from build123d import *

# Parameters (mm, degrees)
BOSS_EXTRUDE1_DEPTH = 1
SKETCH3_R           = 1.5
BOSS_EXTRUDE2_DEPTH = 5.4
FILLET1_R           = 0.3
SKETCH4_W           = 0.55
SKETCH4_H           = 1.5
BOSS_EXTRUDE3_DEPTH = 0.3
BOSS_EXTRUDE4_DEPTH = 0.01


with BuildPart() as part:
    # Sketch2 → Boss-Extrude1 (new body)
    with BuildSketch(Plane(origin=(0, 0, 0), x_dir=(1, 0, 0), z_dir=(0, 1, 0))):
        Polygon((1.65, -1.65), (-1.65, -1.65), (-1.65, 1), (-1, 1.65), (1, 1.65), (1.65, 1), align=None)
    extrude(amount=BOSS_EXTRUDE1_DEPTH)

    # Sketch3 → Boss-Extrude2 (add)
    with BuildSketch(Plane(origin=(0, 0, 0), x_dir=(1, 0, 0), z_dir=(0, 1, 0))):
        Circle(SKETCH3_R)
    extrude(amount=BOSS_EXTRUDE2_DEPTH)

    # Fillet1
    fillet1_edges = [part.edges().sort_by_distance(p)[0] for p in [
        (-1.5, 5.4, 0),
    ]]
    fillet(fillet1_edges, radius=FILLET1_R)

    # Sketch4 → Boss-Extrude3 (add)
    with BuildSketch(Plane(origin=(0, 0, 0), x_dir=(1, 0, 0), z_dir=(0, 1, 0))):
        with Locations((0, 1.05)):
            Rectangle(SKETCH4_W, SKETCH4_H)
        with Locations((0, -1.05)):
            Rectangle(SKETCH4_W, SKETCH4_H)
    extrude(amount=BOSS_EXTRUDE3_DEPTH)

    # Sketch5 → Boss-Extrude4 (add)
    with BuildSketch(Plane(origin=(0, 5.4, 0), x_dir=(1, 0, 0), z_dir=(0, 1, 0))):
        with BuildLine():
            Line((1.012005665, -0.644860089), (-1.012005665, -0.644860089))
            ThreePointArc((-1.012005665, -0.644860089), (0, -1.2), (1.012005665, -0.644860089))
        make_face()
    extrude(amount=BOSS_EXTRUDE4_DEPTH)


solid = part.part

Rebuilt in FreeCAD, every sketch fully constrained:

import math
import FreeCAD as App
import Part
import Sketcher

V = App.Vector


def edges_at(feature, points):
    """Names of the edges that pass closest to the given points."""
    edges = feature.Shape.Edges
    near = lambda p: min(range(len(edges)), key=lambda i: edges[i].distToShape(Part.Vertex(*p))[0])
    return sorted({f"Edge{near(p) + 1}" for p in points})


def add_polygon(sketch, points):
    """Adds a closed chain of lines whose ends are joined by coincident constraints."""
    first, n = sketch.GeometryCount, len(points)
    for a, b in zip(points, points[1:] + points[:1]):
        sketch.addGeometry(Part.LineSegment(App.Vector(*a, 0), App.Vector(*b, 0)), False)
    for i in range(n):
        sketch.addConstraint(Sketcher.Constraint("Coincident", first + i, 2, first + (i + 1) % n, 1))

doc = App.newDocument("Part")
body = doc.addObject("PartDesign::Body", "Body")

# Sketch on XZ plane
sketch1 = doc.addObject("Sketcher::SketchObject", "Sketch")
body.addObject(sketch1)
sketch1.AttachmentSupport = (doc.XZ_Plane, [""])
sketch1.MapMode = "FlatFace"
add_polygon(sketch1, [(-1.6, 1.6), (1.6, 1.6), (1.6, -1), (1, -1.6), (-1, -1.6), (-1.6, -1)])  # lines 0-5
sketch1.addConstraint(Sketcher.Constraint("Horizontal", 0))
sketch1.addConstraint(Sketcher.Constraint("Vertical", 1))
sketch1.addConstraint(Sketcher.Constraint("Horizontal", 3))
sketch1.addConstraint(Sketcher.Constraint("Vertical", 5))
sketch1.addConstraint(Sketcher.Constraint("Symmetric", 1, 2, 4, 2, -2))
sketch1.addConstraint(Sketcher.Constraint("Perpendicular", 2, 4))
sketch1.addConstraint(Sketcher.Constraint("Equal", 2, 4))
sketch1.addConstraint(Sketcher.Constraint("DistanceX", 3, 2, 3, 1, 2.0))
sketch1.addConstraint(Sketcher.Constraint("DistanceX", 0, 1, 0, 2, 3.3))
sketch1.addConstraint(Sketcher.Constraint("DistanceY", 1, 2, -1, 1, 1.0))
sketch1.addConstraint(Sketcher.Constraint("DistanceY", 1, 2, 1, 1, 2.65))
pad1 = doc.addObject("PartDesign::Pad", "Pad")
body.addObject(pad1)
pad1.Profile = sketch1
pad1.Length = 1
pad1.Reversed = True

# Sketch on XZ plane
sketch2 = doc.addObject("Sketcher::SketchObject", "Sketch001")
body.addObject(sketch2)
sketch2.AttachmentSupport = (doc.XZ_Plane, [""])
sketch2.MapMode = "FlatFace"
sketch2.addGeometry(Part.Circle(V(0, 0, 0), V(0, 0, 1), 1.5), False)
sketch2.addConstraint(Sketcher.Constraint("Coincident", 0, 3, -1, 1))
sketch2.addConstraint(Sketcher.Constraint("Diameter", 0, 3.0))
pad2 = doc.addObject("PartDesign::Pad", "Pad001")
body.addObject(pad2)
pad2.Profile = sketch2
pad2.Length = 5.4
pad2.Reversed = True
doc.recompute()

fillet = doc.addObject("PartDesign::Fillet", "Fillet")
body.addObject(fillet)
fillet.Base = (pad2, edges_at(pad2, [(-1.5, 5.4, 0)]))
fillet.Radius = 0.3

# Sketch on XZ plane
sketch3 = doc.addObject("Sketcher::SketchObject", "Sketch002")
body.addObject(sketch3)
sketch3.AttachmentSupport = (doc.XZ_Plane, [""])
sketch3.MapMode = "FlatFace"
add_polygon(sketch3, [(-0.3, -1.8), (-0.3, -0.3), (0.3, -0.3), (0.3, -1.8)])  # lines 0-3
add_polygon(sketch3, [(-0.3, 0.3), (-0.3, 1.8), (0.3, 1.8), (0.3, 0.3)])  # lines 4-7
sketch3.addConstraint(Sketcher.Constraint("Vertical", 0))
sketch3.addConstraint(Sketcher.Constraint("Horizontal", 1))
sketch3.addConstraint(Sketcher.Constraint("Vertical", 2))
sketch3.addConstraint(Sketcher.Constraint("Horizontal", 3))
sketch3.addConstraint(Sketcher.Constraint("Vertical", 4))
sketch3.addConstraint(Sketcher.Constraint("Horizontal", 5))
sketch3.addConstraint(Sketcher.Constraint("Vertical", 6))
sketch3.addConstraint(Sketcher.Constraint("Horizontal", 7))
sketch3.addConstraint(Sketcher.Constraint("Symmetric", 2, 2, 4, 2, -1, 1))
sketch3.addConstraint(Sketcher.Constraint("Symmetric", 0, 2, 6, 2, -1, 1))
sketch3.addConstraint(Sketcher.Constraint("Vertical", 3, 2, 4, 2))
sketch3.addConstraint(Sketcher.Constraint("DistanceY", 0, 1, 0, 2, 1.5))
sketch3.addConstraint(Sketcher.Constraint("DistanceX", 1, 1, 1, 2, 0.55))
sketch3.addConstraint(Sketcher.Constraint("DistanceY", 0, 2, -1, 1, 0.3))
pad3 = doc.addObject("PartDesign::Pad", "Pad002")
body.addObject(pad3)
pad3.Profile = sketch3
pad3.Length = 0.3
pad3.Reversed = True

# Sketch on XZ plane
sketch4 = doc.addObject("Sketcher::SketchObject", "Sketch003")
body.addObject(sketch4)
sketch4.AttachmentSupport = (doc.XZ_Plane, [""])
sketch4.MapMode = "FlatFace"
sketch4.AttachmentOffset = App.Placement(V(0, 0, -5.4), App.Rotation())
sketch4.addGeometry(Part.LineSegment(V(1, 0.6, 0), V(-1, 0.6, 0)), False)
sketch4.addGeometry(Part.ArcOfCircle(Part.Circle(V(0, 0, 0), V(0, 0, 1), 1.2), math.radians(33), math.radians(147)), False)
sketch4.addConstraint(Sketcher.Constraint("Coincident", 0, 1, 1, 1))
sketch4.addConstraint(Sketcher.Constraint("Coincident", 1, 2, 0, 2))
sketch4.addConstraint(Sketcher.Constraint("Horizontal", 0))
sketch4.addConstraint(Sketcher.Constraint("Coincident", 1, 3, -1, 1))
sketch4.addConstraint(Sketcher.Constraint("Radius", 1, 1.2))
sketch4.addConstraint(Sketcher.Constraint("DistanceX", 0, 2, 0, 1, 2.024011))
pad4 = doc.addObject("PartDesign::Pad", "Pad003")
body.addObject(pad4)
pad4.Profile = sketch4
pad4.Length = 0.01
pad4.Reversed = True

doc.recompute()
